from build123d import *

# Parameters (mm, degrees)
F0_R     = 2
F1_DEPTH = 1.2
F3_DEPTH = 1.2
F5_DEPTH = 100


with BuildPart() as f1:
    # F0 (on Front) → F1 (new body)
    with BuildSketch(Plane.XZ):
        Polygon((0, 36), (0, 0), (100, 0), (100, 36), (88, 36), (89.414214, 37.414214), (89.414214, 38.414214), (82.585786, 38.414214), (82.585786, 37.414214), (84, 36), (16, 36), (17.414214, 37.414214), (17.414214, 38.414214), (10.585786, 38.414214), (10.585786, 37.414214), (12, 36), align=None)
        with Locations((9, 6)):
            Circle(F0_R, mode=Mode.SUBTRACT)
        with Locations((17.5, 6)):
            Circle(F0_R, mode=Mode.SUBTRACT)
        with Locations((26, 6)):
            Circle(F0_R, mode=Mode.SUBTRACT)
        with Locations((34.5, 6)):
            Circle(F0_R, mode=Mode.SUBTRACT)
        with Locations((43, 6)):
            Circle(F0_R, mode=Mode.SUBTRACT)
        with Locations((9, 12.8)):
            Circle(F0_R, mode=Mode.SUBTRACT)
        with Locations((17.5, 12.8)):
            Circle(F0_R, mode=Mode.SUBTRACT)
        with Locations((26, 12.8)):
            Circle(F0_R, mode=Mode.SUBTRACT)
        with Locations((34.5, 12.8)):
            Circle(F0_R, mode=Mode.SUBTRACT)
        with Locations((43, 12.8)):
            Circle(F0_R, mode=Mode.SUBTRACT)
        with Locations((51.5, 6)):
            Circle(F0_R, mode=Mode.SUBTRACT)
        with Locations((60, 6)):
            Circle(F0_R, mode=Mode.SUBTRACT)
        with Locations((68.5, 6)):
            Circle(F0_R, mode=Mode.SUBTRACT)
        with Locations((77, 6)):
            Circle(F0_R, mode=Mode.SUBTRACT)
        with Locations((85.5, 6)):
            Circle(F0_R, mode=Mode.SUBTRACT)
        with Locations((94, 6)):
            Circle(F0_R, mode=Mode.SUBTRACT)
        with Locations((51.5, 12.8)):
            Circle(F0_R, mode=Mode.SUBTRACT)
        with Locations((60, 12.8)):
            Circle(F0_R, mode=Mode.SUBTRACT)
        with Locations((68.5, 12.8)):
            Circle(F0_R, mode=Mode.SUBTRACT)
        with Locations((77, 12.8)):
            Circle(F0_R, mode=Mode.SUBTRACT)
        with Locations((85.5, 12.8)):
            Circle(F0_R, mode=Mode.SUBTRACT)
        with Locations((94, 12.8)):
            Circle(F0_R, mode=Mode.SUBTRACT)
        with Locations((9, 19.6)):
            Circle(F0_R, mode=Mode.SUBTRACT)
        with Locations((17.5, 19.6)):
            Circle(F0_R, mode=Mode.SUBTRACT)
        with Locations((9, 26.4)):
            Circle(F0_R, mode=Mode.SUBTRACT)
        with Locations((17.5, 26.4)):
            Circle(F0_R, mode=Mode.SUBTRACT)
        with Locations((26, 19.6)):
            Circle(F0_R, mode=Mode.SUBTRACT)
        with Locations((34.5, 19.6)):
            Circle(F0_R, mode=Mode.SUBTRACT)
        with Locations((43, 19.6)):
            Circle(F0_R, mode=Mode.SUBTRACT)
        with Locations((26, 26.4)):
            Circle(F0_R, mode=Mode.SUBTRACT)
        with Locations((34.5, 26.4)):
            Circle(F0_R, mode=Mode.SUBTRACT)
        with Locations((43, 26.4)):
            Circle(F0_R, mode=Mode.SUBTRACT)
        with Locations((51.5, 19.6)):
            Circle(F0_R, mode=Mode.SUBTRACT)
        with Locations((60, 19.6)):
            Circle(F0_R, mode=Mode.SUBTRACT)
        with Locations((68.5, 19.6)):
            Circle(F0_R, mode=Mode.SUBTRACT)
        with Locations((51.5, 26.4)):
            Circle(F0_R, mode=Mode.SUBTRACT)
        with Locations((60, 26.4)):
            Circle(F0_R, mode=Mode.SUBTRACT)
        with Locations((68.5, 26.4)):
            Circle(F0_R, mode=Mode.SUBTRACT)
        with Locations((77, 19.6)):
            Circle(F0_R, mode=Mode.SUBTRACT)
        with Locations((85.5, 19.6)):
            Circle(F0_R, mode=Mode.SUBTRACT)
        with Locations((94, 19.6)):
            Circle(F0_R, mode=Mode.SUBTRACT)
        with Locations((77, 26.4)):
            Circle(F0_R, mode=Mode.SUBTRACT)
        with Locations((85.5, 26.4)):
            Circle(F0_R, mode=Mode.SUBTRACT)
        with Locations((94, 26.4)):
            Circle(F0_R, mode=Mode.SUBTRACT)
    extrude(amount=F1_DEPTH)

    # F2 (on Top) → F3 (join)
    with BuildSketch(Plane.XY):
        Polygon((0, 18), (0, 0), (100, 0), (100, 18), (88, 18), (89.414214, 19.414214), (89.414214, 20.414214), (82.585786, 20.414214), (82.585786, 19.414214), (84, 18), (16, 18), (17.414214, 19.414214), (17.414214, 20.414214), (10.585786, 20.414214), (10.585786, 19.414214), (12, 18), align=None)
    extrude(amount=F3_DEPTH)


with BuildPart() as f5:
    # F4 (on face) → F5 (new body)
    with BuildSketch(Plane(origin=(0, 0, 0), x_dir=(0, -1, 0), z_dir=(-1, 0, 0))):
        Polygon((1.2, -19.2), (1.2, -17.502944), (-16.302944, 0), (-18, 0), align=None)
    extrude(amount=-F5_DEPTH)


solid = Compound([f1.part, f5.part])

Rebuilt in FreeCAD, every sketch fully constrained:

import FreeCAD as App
import Part
import Sketcher

V = App.Vector
Q = App.Units.Quantity

doc = App.newDocument("Part")
body = doc.addObject("PartDesign::Body", "Body")

# Sketch on XZ plane
sketch1 = body.newObject("Sketcher::SketchObject", "Sketch")
sketch1.AttachmentSupport = (doc.getObject("XZ_Plane"), [""])
sketch1.MapMode = "FlatFace"
sketch1.addGeometry(Part.LineSegment(V(0, 36, 0), V(0, 0, 0)), False)
sketch1.addGeometry(Part.LineSegment(V(0, 0, 0), V(100, 0, 0)), False)
sketch1.addGeometry(Part.LineSegment(V(100, 0, 0), V(100, 36, 0)), False)
sketch1.addGeometry(Part.LineSegment(V(100, 36, 0), V(88, 36, 0)), False)
sketch1.addGeometry(Part.LineSegment(V(88, 36, 0), V(89.4, 37.4, 0)), False)
sketch1.addGeometry(Part.LineSegment(V(89.4, 37.4, 0), V(89.4, 38.4, 0)), False)
sketch1.addGeometry(Part.LineSegment(V(89.4, 38.4, 0), V(82.6, 38.4, 0)), False)
sketch1.addGeometry(Part.LineSegment(V(82.6, 38.4, 0), V(82.6, 37.4, 0)), False)
sketch1.addGeometry(Part.LineSegment(V(82.6, 37.4, 0), V(84, 36, 0)), False)
sketch1.addGeometry(Part.LineSegment(V(84, 36, 0), V(16, 36, 0)), False)
sketch1.addGeometry(Part.LineSegment(V(16, 36, 0), V(17.4, 37.4, 0)), False)
sketch1.addGeometry(Part.LineSegment(V(17.4, 37.4, 0), V(17.4, 38.4, 0)), False)
sketch1.addGeometry(Part.LineSegment(V(17.4, 38.4, 0), V(10.6, 38.4, 0)), False)
sketch1.addGeometry(Part.LineSegment(V(10.6, 38.4, 0), V(10.6, 37.4, 0)), False)
sketch1.addGeometry(Part.LineSegment(V(10.6, 37.4, 0), V(12, 36, 0)), False)
sketch1.addGeometry(Part.LineSegment(V(12, 36, 0), V(0, 36, 0)), False)
sketch1.addGeometry(Part.Circle(V(9, 6, 0), V(0, 0, 1), 2), False)
sketch1.addGeometry(Part.Circle(V(17.5, 6, 0), V(0, 0, 1), 2), False)
sketch1.addGeometry(Part.Circle(V(26, 6, 0), V(0, 0, 1), 2), False)
sketch1.addGeometry(Part.Circle(V(34.5, 6, 0), V(0, 0, 1), 2), False)
sketch1.addGeometry(Part.Circle(V(43, 6, 0), V(0, 0, 1), 2), False)
sketch1.addGeometry(Part.Circle(V(9, 12.8, 0), V(0, 0, 1), 2), False)
sketch1.addGeometry(Part.Circle(V(17.5, 12.8, 0), V(0, 0, 1), 2), False)
sketch1.addGeometry(Part.Circle(V(26, 12.8, 0), V(0, 0, 1), 2), False)
sketch1.addGeometry(Part.Circle(V(34.5, 12.8, 0), V(0, 0, 1), 2), False)
sketch1.addGeometry(Part.Circle(V(43, 12.8, 0), V(0, 0, 1), 2), False)
sketch1.addGeometry(Part.Circle(V(51.5, 6, 0), V(0, 0, 1), 2), False)
sketch1.addGeometry(Part.Circle(V(60, 6, 0), V(0, 0, 1), 2), False)
sketch1.addGeometry(Part.Circle(V(68.5, 6, 0), V(0, 0, 1), 2), False)
sketch1.addGeometry(Part.Circle(V(77, 6, 0), V(0, 0, 1), 2), False)
sketch1.addGeometry(Part.Circle(V(85.5, 6, 0), V(0, 0, 1), 2), False)
sketch1.addGeometry(Part.Circle(V(94, 6, 0), V(0, 0, 1), 2), False)
sketch1.addGeometry(Part.Circle(V(51.5, 12.8, 0), V(0, 0, 1), 2), False)
sketch1.addGeometry(Part.Circle(V(60, 12.8, 0), V(0, 0, 1), 2), False)
sketch1.addGeometry(Part.Circle(V(68.5, 12.8, 0), V(0, 0, 1), 2), False)
sketch1.addGeometry(Part.Circle(V(77, 12.8, 0), V(0, 0, 1), 2), False)
sketch1.addGeometry(Part.Circle(V(85.5, 12.8, 0), V(0, 0, 1), 2), False)
sketch1.addGeometry(Part.Circle(V(94, 12.8, 0), V(0, 0, 1), 2), False)
sketch1.addGeometry(Part.Circle(V(9, 19.6, 0), V(0, 0, 1), 2), False)
sketch1.addGeometry(Part.Circle(V(17.5, 19.6, 0), V(0, 0, 1), 2), False)
sketch1.addGeometry(Part.Circle(V(26, 19.6, 0), V(0, 0, 1), 2), False)
sketch1.addGeometry(Part.Circle(V(34.5, 19.6, 0), V(0, 0, 1), 2), False)
sketch1.addGeometry(Part.Circle(V(43, 19.6, 0), V(0, 0, 1), 2), False)
sketch1.addGeometry(Part.Circle(V(9, 26.4, 0), V(0, 0, 1), 2), False)
sketch1.addGeometry(Part.Circle(V(17.5, 26.4, 0), V(0, 0, 1), 2), False)
sketch1.addGeometry(Part.Circle(V(26, 26.4, 0), V(0, 0, 1), 2), False)
sketch1.addGeometry(Part.Circle(V(34.5, 26.4, 0), V(0, 0, 1), 2), False)
sketch1.addGeometry(Part.Circle(V(43, 26.4, 0), V(0, 0, 1), 2), False)
sketch1.addGeometry(Part.Circle(V(51.5, 19.6, 0), V(0, 0, 1), 2), False)
sketch1.addGeometry(Part.Circle(V(60, 19.6, 0), V(0, 0, 1), 2), False)
sketch1.addGeometry(Part.Circle(V(68.5, 19.6, 0), V(0, 0, 1), 2), False)
sketch1.addGeometry(Part.Circle(V(77, 19.6, 0), V(0, 0, 1), 2), False)
sketch1.addGeometry(Part.Circle(V(85.5, 19.6, 0), V(0, 0, 1), 2), False)
sketch1.addGeometry(Part.Circle(V(94, 19.6, 0), V(0, 0, 1), 2), False)
sketch1.addGeometry(Part.Circle(V(51.5, 26.4, 0), V(0, 0, 1), 2), False)
sketch1.addGeometry(Part.Circle(V(60, 26.4, 0), V(0, 0, 1), 2), False)
sketch1.addGeometry(Part.Circle(V(68.5, 26.4, 0), V(0, 0, 1), 2), False)
sketch1.addGeometry(Part.Circle(V(77, 26.4, 0), V(0, 0, 1), 2), False)
sketch1.addGeometry(Part.Circle(V(85.5, 26.4, 0), V(0, 0, 1), 2), False)
sketch1.addGeometry(Part.Circle(V(94, 26.4, 0), V(0, 0, 1), 2), False)
sketch1.addConstraint(Sketcher.Constraint("Coincident", 0, 2, 1, 1))
sketch1.addConstraint(Sketcher.Constraint("Coincident", 1, 2, 2, 1))
sketch1.addConstraint(Sketcher.Constraint("Coincident", 2, 2, 3, 1))
sketch1.addConstraint(Sketcher.Constraint("Coincident", 3, 2, 4, 1))
sketch1.addConstraint(Sketcher.Constraint("Coincident", 4, 2, 5, 1))
sketch1.addConstraint(Sketcher.Constraint("Coincident", 5, 2, 6, 1))
sketch1.addConstraint(Sketcher.Constraint("Coincident", 6, 2, 7, 1))
sketch1.addConstraint(Sketcher.Constraint("Coincident", 7, 2, 8, 1))
sketch1.addConstraint(Sketcher.Constraint("Coincident", 8, 2, 9, 1))
sketch1.addConstraint(Sketcher.Constraint("Coincident", 9, 2, 10, 1))
sketch1.addConstraint(Sketcher.Constraint("Coincident", 10, 2, 11, 1))
sketch1.addConstraint(Sketcher.Constraint("Coincident", 11, 2, 12, 1))
sketch1.addConstraint(Sketcher.Constraint("Coincident", 12, 2, 13, 1))
sketch1.addConstraint(Sketcher.Constraint("Coincident", 13, 2, 14, 1))
sketch1.addConstraint(Sketcher.Constraint("Coincident", 14, 2, 15, 1))
sketch1.addConstraint(Sketcher.Constraint("Coincident", 15, 2, 0, 1))
sketch1.addConstraint(Sketcher.Constraint("Vertical", 0))
sketch1.addConstraint(Sketcher.Constraint("Horizontal", 1))
sketch1.addConstraint(Sketcher.Constraint("Vertical", 2))
sketch1.addConstraint(Sketcher.Constraint("Horizontal", 3))
sketch1.addConstraint(Sketcher.Constraint("Vertical", 5))
sketch1.addConstraint(Sketcher.Constraint("Horizontal", 6))
sketch1.addConstraint(Sketcher.Constraint("Vertical", 7))
sketch1.addConstraint(Sketcher.Constraint("Horizontal", 9))
sketch1.addConstraint(Sketcher.Constraint("Vertical", 11))
sketch1.addConstraint(Sketcher.Constraint("Horizontal", 12))
sketch1.addConstraint(Sketcher.Constraint("Vertical", 13))
sketch1.addConstraint(Sketcher.Constraint("Horizontal", 15))
sketch1.addConstraint(Sketcher.Constraint("Coincident", 0, 2, -1, 1))
sketch1.addConstraint(Sketcher.Constraint("Equal", 16, 17))
sketch1.addConstraint(Sketcher.Constraint("Equal", 17, 18))
sketch1.addConstraint(Sketcher.Constraint("Equal", 18, 19))
sketch1.addConstraint(Sketcher.Constraint("Equal", 19, 20))
sketch1.addConstraint(Sketcher.Constraint("Equal", 20, 21))
sketch1.addConstraint(Sketcher.Constraint("Equal", 21, 22))
sketch1.addConstraint(Sketcher.Constraint("Equal", 22, 23))
sketch1.addConstraint(Sketcher.Constraint("Equal", 23, 24))
sketch1.addConstraint(Sketcher.Constraint("Equal", 24, 25))
sketch1.addConstraint(Sketcher.Constraint("Equal", 25, 26))
sketch1.addConstraint(Sketcher.Constraint("Equal", 26, 27))
sketch1.addConstraint(Sketcher.Constraint("Equal", 27, 28))
sketch1.addConstraint(Sketcher.Constraint("Equal", 28, 29))
sketch1.addConstraint(Sketcher.Constraint("Equal", 29, 30))
sketch1.addConstraint(Sketcher.Constraint("Equal", 30, 31))
sketch1.addConstraint(Sketcher.Constraint("Equal", 31, 32))
sketch1.addConstraint(Sketcher.Constraint("Equal", 32, 33))
sketch1.addConstraint(Sketcher.Constraint("Equal", 33, 34))
sketch1.addConstraint(Sketcher.Constraint("Equal", 34, 35))
sketch1.addConstraint(Sketcher.Constraint("Equal", 35, 36))
sketch1.addConstraint(Sketcher.Constraint("Equal", 36, 37))
sketch1.addConstraint(Sketcher.Constraint("Equal", 37, 38))
sketch1.addConstraint(Sketcher.Constraint("Equal", 38, 39))
sketch1.addConstraint(Sketcher.Constraint("Equal", 39, 40))
sketch1.addConstraint(Sketcher.Constraint("Equal", 40, 41))
sketch1.addConstraint(Sketcher.Constraint("Equal", 41, 42))
sketch1.addConstraint(Sketcher.Constraint("Equal", 42, 43))
sketch1.addConstraint(Sketcher.Constraint("Equal", 43, 44))
sketch1.addConstraint(Sketcher.Constraint("Equal", 44, 45))
sketch1.addConstraint(Sketcher.Constraint("Equal", 45, 46))
sketch1.addConstraint(Sketcher.Constraint("Equal", 46, 47))
sketch1.addConstraint(Sketcher.Constraint("Equal", 47, 48))
sketch1.addConstraint(Sketcher.Constraint("Equal", 48, 49))
sketch1.addConstraint(Sketcher.Constraint("Equal", 49, 50))
sketch1.addConstraint(Sketcher.Constraint("Equal", 50, 51))
sketch1.addConstraint(Sketcher.Constraint("Equal", 51, 52))
sketch1.addConstraint(Sketcher.Constraint("Equal", 52, 53))
sketch1.addConstraint(Sketcher.Constraint("Equal", 53, 54))
sketch1.addConstraint(Sketcher.Constraint("Equal", 54, 55))
sketch1.addConstraint(Sketcher.Constraint("Equal", 55, 56))
sketch1.addConstraint(Sketcher.Constraint("Equal", 56, 57))
sketch1.addConstraint(Sketcher.Constraint("Equal", 57, 58))
sketch1.addConstraint(Sketcher.Constraint("Equal", 58, 59))
sketch1.addConstraint(Sketcher.Constraint("Perpendicular", 4, 8))
sketch1.addConstraint(Sketcher.Constraint("Perpendicular", 8, 10))
sketch1.addConstraint(Sketcher.Constraint("Perpendicular", 10, 14))
sketch1.addConstraint(Sketcher.Constraint("Horizontal", 16, 3, 17, 3))
sketch1.addConstraint(Sketcher.Constraint("Horizontal", 17, 3, 18, 3))
sketch1.addConstraint(Sketcher.Constraint("Horizontal", 18, 3, 19, 3))
sketch1.addConstraint(Sketcher.Constraint("Horizontal", 19, 3, 20, 3))
sketch1.addConstraint(Sketcher.Constraint("Horizontal", 21, 3, 22, 3))
sketch1.addConstraint(Sketcher.Constraint("Horizontal", 22, 3, 23, 3))
sketch1.addConstraint(Sketcher.Constraint("Horizontal", 23, 3, 24, 3))
sketch1.addConstraint(Sketcher.Constraint("Horizontal", 24, 3, 25, 3))
sketch1.addConstraint(Sketcher.Constraint("Horizontal", 20, 3, 26, 3))
sketch1.addConstraint(Sketcher.Constraint("Horizontal", 26, 3, 27, 3))
sketch1.addConstraint(Sketcher.Constraint("Horizontal", 27, 3, 28, 3))
sketch1.addConstraint(Sketcher.Constraint("Horizontal", 28, 3, 29, 3))
sketch1.addConstraint(Sketcher.Constraint("Horizontal", 29, 3, 30, 3))
sketch1.addConstraint(Sketcher.Constraint("Horizontal", 30, 3, 31, 3))
sketch1.addConstraint(Sketcher.Constraint("Horizontal", 25, 3, 32, 3))
sketch1.addConstraint(Sketcher.Constraint("Horizontal", 32, 3, 33, 3))
sketch1.addConstraint(Sketcher.Constraint("Horizontal", 33, 3, 34, 3))
sketch1.addConstraint(Sketcher.Constraint("Horizontal", 34, 3, 35, 3))
sketch1.addConstraint(Sketcher.Constraint("Horizontal", 35, 3, 36, 3))
sketch1.addConstraint(Sketcher.Constraint("Horizontal", 36, 3, 37, 3))
sketch1.addConstraint(Sketcher.Constraint("Horizontal", 38, 3, 39, 3))
sketch1.addConstraint(Sketcher.Constraint("Horizontal", 39, 3, 40, 3))
sketch1.addConstraint(Sketcher.Constraint("Horizontal", 40, 3, 41, 3))
sketch1.addConstraint(Sketcher.Constraint("Horizontal", 41, 3, 42, 3))
sketch1.addConstraint(Sketcher.Constraint("Horizontal", 43, 3, 44, 3))
sketch1.addConstraint(Sketcher.Constraint("Horizontal", 44, 3, 45, 3))
sketch1.addConstraint(Sketcher.Constraint("Horizontal", 45, 3, 46, 3))
sketch1.addConstraint(Sketcher.Constraint("Horizontal", 46, 3, 47, 3))
sketch1.addConstraint(Sketcher.Constraint("Horizontal", 42, 3, 48, 3))
sketch1.addConstraint(Sketcher.Constraint("Horizontal", 48, 3, 49, 3))
sketch1.addConstraint(Sketcher.Constraint("Horizontal", 49, 3, 50, 3))
sketch1.addConstraint(Sketcher.Constraint("Horizontal", 50, 3, 51, 3))
sketch1.addConstraint(Sketcher.Constraint("Horizontal", 51, 3, 52, 3))
sketch1.addConstraint(Sketcher.Constraint("Horizontal", 52, 3, 53, 3))
sketch1.addConstraint(Sketcher.Constraint("Horizontal", 47, 3, 54, 3))
sketch1.addConstraint(Sketcher.Constraint("Horizontal", 54, 3, 55, 3))
sketch1.addConstraint(Sketcher.Constraint("Horizontal", 55, 3, 56, 3))
sketch1.addConstraint(Sketcher.Constraint("Horizontal", 56, 3, 57, 3))
sketch1.addConstraint(Sketcher.Constraint("Horizontal", 57, 3, 58, 3))
sketch1.addConstraint(Sketcher.Constraint("Horizontal", 58, 3, 59, 3))
sketch1.addConstraint(Sketcher.Constraint("Horizontal", 4, 2, 7, 2))
sketch1.addConstraint(Sketcher.Constraint("Horizontal", 3, 2, 8, 2))
sketch1.addConstraint(Sketcher.Constraint("Horizontal", 7, 2, 10, 2))
sketch1.addConstraint(Sketcher.Constraint("Horizontal", 6, 2, 11, 2))
sketch1.addConstraint(Sketcher.Constraint("Horizontal", 10, 2, 13, 2))
sketch1.addConstraint(Sketcher.Constraint("Horizontal", 9, 2, 14, 2))
sketch1.addConstraint(Sketcher.Constraint("Vertical", 16, 3, 21, 3))
sketch1.addConstraint(Sketcher.Constraint("Vertical", 17, 3, 22, 3))
sketch1.addConstraint(Sketcher.Constraint("Vertical", 18, 3, 23, 3))
sketch1.addConstraint(Sketcher.Constraint("Vertical", 19, 3, 24, 3))
sketch1.addConstraint(Sketcher.Constraint("Vertical", 20, 3, 25, 3))
sketch1.addConstraint(Sketcher.Constraint("Vertical", 26, 3, 32, 3))
sketch1.addConstraint(Sketcher.Constraint("Vertical", 27, 3, 33, 3))
sketch1.addConstraint(Sketcher.Constraint("Vertical", 28, 3, 34, 3))
sketch1.addConstraint(Sketcher.Constraint("Vertical", 29, 3, 35, 3))
sketch1.addConstraint(Sketcher.Constraint("Vertical", 30, 3, 36, 3))
sketch1.addConstraint(Sketcher.Constraint("Vertical", 31, 3, 37, 3))
sketch1.addConstraint(Sketcher.Constraint("Vertical", 21, 3, 38, 3))
sketch1.addConstraint(Sketcher.Constraint("Vertical", 22, 3, 39, 3))
sketch1.addConstraint(Sketcher.Constraint("Vertical", 23, 3, 40, 3))
sketch1.addConstraint(Sketcher.Constraint("Vertical", 24, 3, 41, 3))
sketch1.addConstraint(Sketcher.Constraint("Vertical", 25, 3, 42, 3))
sketch1.addConstraint(Sketcher.Constraint("Vertical", 38, 3, 43, 3))
sketch1.addConstraint(Sketcher.Constraint("Vertical", 39, 3, 44, 3))
sketch1.addConstraint(Sketcher.Constraint("Vertical", 40, 3, 45, 3))
sketch1.addConstraint(Sketcher.Constraint("Vertical", 41, 3, 46, 3))
sketch1.addConstraint(Sketcher.Constraint("Vertical", 42, 3, 47, 3))
sketch1.addConstraint(Sketcher.Constraint("Vertical", 32, 3, 48, 3))
sketch1.addConstraint(Sketcher.Constraint("Vertical", 33, 3, 49, 3))
sketch1.addConstraint(Sketcher.Constraint("Vertical", 34, 3, 50, 3))
sketch1.addConstraint(Sketcher.Constraint("Vertical", 35, 3, 51, 3))
sketch1.addConstraint(Sketcher.Constraint("Vertical", 36, 3, 52, 3))
sketch1.addConstraint(Sketcher.Constraint("Vertical", 37, 3, 53, 3))
sketch1.addConstraint(Sketcher.Constraint("Vertical", 48, 3, 54, 3))
sketch1.addConstraint(Sketcher.Constraint("Vertical", 49, 3, 55, 3))
sketch1.addConstraint(Sketcher.Constraint("Vertical", 50, 3, 56, 3))
sketch1.addConstraint(Sketcher.Constraint("Vertical", 51, 3, 57, 3))
sketch1.addConstraint(Sketcher.Constraint("Vertical", 52, 3, 58, 3))
sketch1.addConstraint(Sketcher.Constraint("Vertical", 53, 3, 59, 3))
sketch1.addConstraint(Sketcher.Constraint("Equal", 6, 12))
sketch1.addConstraint(Sketcher.Constraint("Equal", 3, 15))
sketch1.addConstraint(Sketcher.Constraint("Equal", 4, 8))
sketch1.addConstraint(Sketcher.Constraint("Diameter", 16, Q("4 mm")))
sketch1.addConstraint(Sketcher.Constraint("DistanceX", 1, 1, 1, 2, Q("100 mm")))
sketch1.addConstraint(Sketcher.Constraint("DistanceX", 3, 2, 3, 1, Q("12 mm")))
sketch1.addConstraint(Sketcher.Constraint("DistanceX", 9, 2, 9, 1, Q("68 mm")))
sketch1.addConstraint(Sketcher.Constraint("DistanceY", 0, 2, 0, 1, Q("36 mm")))
sketch1.addConstraint(Sketcher.Constraint("DistanceY", 5, 1, 5, 2, Q("1 mm")))
sketch1.addConstraint(Sketcher.Constraint("Distance", 4, Q("2.000001 mm")))
sketch1.addConstraint(Sketcher.Constraint("DistanceX", -1, 1, 16, 3, Q("9 mm")))
sketch1.addConstraint(Sketcher.Constraint("DistanceY", -1, 1, 16, 3, Q("6 mm")))
sketch1.addConstraint(Sketcher.Constraint("DistanceX", -1, 1, 18, 3, Q("26 mm")))
sketch1.addConstraint(Sketcher.Constraint("DistanceX", -1, 1, 20, 3, Q("43 mm")))
sketch1.addConstraint(Sketcher.Constraint("DistanceX", -1, 1, 27, 3, Q("60 mm")))
sketch1.addConstraint(Sketcher.Constraint("DistanceX", -1, 1, 29, 3, Q("77 mm")))
sketch1.addConstraint(Sketcher.Constraint("DistanceX", -1, 1, 31, 3, Q("94 mm")))
sketch1.addConstraint(Sketcher.Constraint("DistanceX", 17, 3, 19, 3, Q("17 mm")))
sketch1.addConstraint(Sketcher.Constraint("DistanceX", 19, 3, 26, 3, Q("17 mm")))
sketch1.addConstraint(Sketcher.Constraint("DistanceX", 26, 3, 28, 3, Q("17 mm")))
sketch1.addConstraint(Sketcher.Constraint("DistanceX", 28, 3, 30, 3, Q("17 mm")))
sketch1.addConstraint(Sketcher.Constraint("DistanceX", -1, 1, 17, 3, Q("17.5 mm")))
sketch1.addConstraint(Sketcher.Constraint("DistanceY", -1, 1, 21, 3, Q("12.8 mm")))
sketch1.addConstraint(Sketcher.Constraint("DistanceY", -1, 1, 38, 3, Q("19.6 mm")))
sketch1.addConstraint(Sketcher.Constraint("DistanceY", -1, 1, 43, 3, Q("26.4 mm")))
pad1 = body.newObject("PartDesign::Pad", "Pad")
pad1.Profile = sketch1
pad1.Length = 1.2

# Sketch on XY plane
sketch2 = body.newObject("Sketcher::SketchObject", "Sketch001")
sketch2.AttachmentSupport = (doc.getObject("XY_Plane"), [""])
sketch2.MapMode = "FlatFace"
sketch2.addGeometry(Part.LineSegment(V(0, 18, 0), V(0, 0, 0)), False)
sketch2.addGeometry(Part.LineSegment(V(0, 0, 0), V(100, 0, 0)), False)
sketch2.addGeometry(Part.LineSegment(V(100, 0, 0), V(100, 18, 0)), False)
sketch2.addGeometry(Part.LineSegment(V(100, 18, 0), V(88, 18, 0)), False)
sketch2.addGeometry(Part.LineSegment(V(88, 18, 0), V(89.4, 19.4, 0)), False)
sketch2.addGeometry(Part.LineSegment(V(89.4, 19.4, 0), V(89.4, 20.4, 0)), False)
sketch2.addGeometry(Part.LineSegment(V(89.4, 20.4, 0), V(82.6, 20.4, 0)), False)
sketch2.addGeometry(Part.LineSegment(V(82.6, 20.4, 0), V(82.6, 19.4, 0)), False)
sketch2.addGeometry(Part.LineSegment(V(82.6, 19.4, 0), V(84, 18, 0)), False)
sketch2.addGeometry(Part.LineSegment(V(84, 18, 0), V(16, 18, 0)), False)
sketch2.addGeometry(Part.LineSegment(V(16, 18, 0), V(17.4, 19.4, 0)), False)
sketch2.addGeometry(Part.LineSegment(V(17.4, 19.4, 0), V(17.4, 20.4, 0)), False)
sketch2.addGeometry(Part.LineSegment(V(17.4, 20.4, 0), V(10.6, 20.4, 0)), False)
sketch2.addGeometry(Part.LineSegment(V(10.6, 20.4, 0), V(10.6, 19.4, 0)), False)
sketch2.addGeometry(Part.LineSegment(V(10.6, 19.4, 0), V(12, 18, 0)), False)
sketch2.addGeometry(Part.LineSegment(V(12, 18, 0), V(0, 18, 0)), False)
sketch2.addConstraint(Sketcher.Constraint("Coincident", 0, 2, 1, 1))
sketch2.addConstraint(Sketcher.Constraint("Coincident", 1, 2, 2, 1))
sketch2.addConstraint(Sketcher.Constraint("Coincident", 2, 2, 3, 1))
sketch2.addConstraint(Sketcher.Constraint("Coincident", 3, 2, 4, 1))
sketch2.addConstraint(Sketcher.Constraint("Coincident", 4, 2, 5, 1))
sketch2.addConstraint(Sketcher.Constraint("Coincident", 5, 2, 6, 1))
sketch2.addConstraint(Sketcher.Constraint("Coincident", 6, 2, 7, 1))
sketch2.addConstraint(Sketcher.Constraint("Coincident", 7, 2, 8, 1))
sketch2.addConstraint(Sketcher.Constraint("Coincident", 8, 2, 9, 1))
sketch2.addConstraint(Sketcher.Constraint("Coincident", 9, 2, 10, 1))
sketch2.addConstraint(Sketcher.Constraint("Coincident", 10, 2, 11, 1))
sketch2.addConstraint(Sketcher.Constraint("Coincident", 11, 2, 12, 1))
sketch2.addConstraint(Sketcher.Constraint("Coincident", 12, 2, 13, 1))
sketch2.addConstraint(Sketcher.Constraint("Coincident", 13, 2, 14, 1))
sketch2.addConstraint(Sketcher.Constraint("Coincident", 14, 2, 15, 1))
sketch2.addConstraint(Sketcher.Constraint("Coincident", 15, 2, 0, 1))
sketch2.addConstraint(Sketcher.Constraint("Vertical", 0))
sketch2.addConstraint(Sketcher.Constraint("Horizontal", 1))
sketch2.addConstraint(Sketcher.Constraint("Vertical", 2))
sketch2.addConstraint(Sketcher.Constraint("Horizontal", 3))
sketch2.addConstraint(Sketcher.Constraint("Vertical", 5))
sketch2.addConstraint(Sketcher.Constraint("Horizontal", 6))
sketch2.addConstraint(Sketcher.Constraint("Vertical", 7))
sketch2.addConstraint(Sketcher.Constraint("Horizontal", 9))
sketch2.addConstraint(Sketcher.Constraint("Vertical", 11))
sketch2.addConstraint(Sketcher.Constraint("Horizontal", 12))
sketch2.addConstraint(Sketcher.Constraint("Vertical", 13))
sketch2.addConstraint(Sketcher.Constraint("Horizontal", 15))
sketch2.addConstraint(Sketcher.Constraint("Coincident", 0, 2, -1, 1))
sketch2.addConstraint(Sketcher.Constraint("Perpendicular", 4, 8))
sketch2.addConstraint(Sketcher.Constraint("Perpendicular", 8, 10))
sketch2.addConstraint(Sketcher.Constraint("Perpendicular", 10, 14))
sketch2.addConstraint(Sketcher.Constraint("Horizontal", 4, 2, 7, 2))
sketch2.addConstraint(Sketcher.Constraint("Horizontal", 3, 2, 8, 2))
sketch2.addConstraint(Sketcher.Constraint("Horizontal", 7, 2, 10, 2))
sketch2.addConstraint(Sketcher.Constraint("Horizontal", 6, 2, 11, 2))
sketch2.addConstraint(Sketcher.Constraint("Horizontal", 10, 2, 13, 2))
sketch2.addConstraint(Sketcher.Constraint("Horizontal", 9, 2, 14, 2))
sketch2.addConstraint(Sketcher.Constraint("Equal", 6, 12))
sketch2.addConstraint(Sketcher.Constraint("Equal", 3, 15))
sketch2.addConstraint(Sketcher.Constraint("Equal", 4, 8))
sketch2.addConstraint(Sketcher.Constraint("DistanceX", 1, 1, 1, 2, Q("100 mm")))
sketch2.addConstraint(Sketcher.Constraint("DistanceX", 3, 2, 3, 1, Q("12 mm")))
sketch2.addConstraint(Sketcher.Constraint("DistanceX", 9, 2, 9, 1, Q("68 mm")))
sketch2.addConstraint(Sketcher.Constraint("DistanceY", 0, 2, 0, 1, Q("18 mm")))
sketch2.addConstraint(Sketcher.Constraint("DistanceY", 5, 1, 5, 2, Q("1 mm")))
sketch2.addConstraint(Sketcher.Constraint("Distance", 4, Q("2.000001 mm")))
pad2 = body.newObject("PartDesign::Pad", "Pad001")
pad2.Profile = sketch2
pad2.Length = 1.2
body2 = doc.addObject("PartDesign::Body", "Body001")

# Sketch on YZ plane
sketch3 = body2.newObject("Sketcher::SketchObject", "Sketch002")
sketch3.AttachmentSupport = (doc.getObject("YZ_Plane001"), [""])
sketch3.MapMode = "FlatFace"
sketch3.addGeometry(Part.LineSegment(V(-1.2, -19.2, 0), V(-1.2, -17.5, 0)), False)
sketch3.addGeometry(Part.LineSegment(V(-1.2, -17.5, 0), V(16.3, 0, 0)), False)
sketch3.addGeometry(Part.LineSegment(V(16.3, 0, 0), V(18, 0, 0)), False)
sketch3.addGeometry(Part.LineSegment(V(18, 0, 0), V(-1.2, -19.2, 0)), False)
sketch3.addConstraint(Sketcher.Constraint("Coincident", 0, 2, 1, 1))
sketch3.addConstraint(Sketcher.Constraint("Coincident", 1, 2, 2, 1))
sketch3.addConstraint(Sketcher.Constraint("Coincident", 2, 2, 3, 1))
sketch3.addConstraint(Sketcher.Constraint("Coincident", 3, 2, 0, 1))
sketch3.addConstraint(Sketcher.Constraint("Vertical", 0))
sketch3.addConstraint(Sketcher.Constraint("Horizontal", 2))
sketch3.addConstraint(Sketcher.Constraint("PointOnObject", 1, 2, -1))
sketch3.addConstraint(Sketcher.Constraint("Parallel", 1, 3))
sketch3.addConstraint(Sketcher.Constraint("Equal", 2, 0))
sketch3.addConstraint(Sketcher.Constraint("DistanceX", -1, 1, 2, 2, Q("18 mm")))
sketch3.addConstraint(Sketcher.Constraint("DistanceX", 0, 2, -1, 1, Q("1.2 mm")))
sketch3.addConstraint(Sketcher.Constraint("Distance", 1, Q("24.752901 mm")))
pad3 = body2.newObject("PartDesign::Pad", "Pad002")
pad3.Profile = sketch3
pad3.Length = 100

doc.recompute()
